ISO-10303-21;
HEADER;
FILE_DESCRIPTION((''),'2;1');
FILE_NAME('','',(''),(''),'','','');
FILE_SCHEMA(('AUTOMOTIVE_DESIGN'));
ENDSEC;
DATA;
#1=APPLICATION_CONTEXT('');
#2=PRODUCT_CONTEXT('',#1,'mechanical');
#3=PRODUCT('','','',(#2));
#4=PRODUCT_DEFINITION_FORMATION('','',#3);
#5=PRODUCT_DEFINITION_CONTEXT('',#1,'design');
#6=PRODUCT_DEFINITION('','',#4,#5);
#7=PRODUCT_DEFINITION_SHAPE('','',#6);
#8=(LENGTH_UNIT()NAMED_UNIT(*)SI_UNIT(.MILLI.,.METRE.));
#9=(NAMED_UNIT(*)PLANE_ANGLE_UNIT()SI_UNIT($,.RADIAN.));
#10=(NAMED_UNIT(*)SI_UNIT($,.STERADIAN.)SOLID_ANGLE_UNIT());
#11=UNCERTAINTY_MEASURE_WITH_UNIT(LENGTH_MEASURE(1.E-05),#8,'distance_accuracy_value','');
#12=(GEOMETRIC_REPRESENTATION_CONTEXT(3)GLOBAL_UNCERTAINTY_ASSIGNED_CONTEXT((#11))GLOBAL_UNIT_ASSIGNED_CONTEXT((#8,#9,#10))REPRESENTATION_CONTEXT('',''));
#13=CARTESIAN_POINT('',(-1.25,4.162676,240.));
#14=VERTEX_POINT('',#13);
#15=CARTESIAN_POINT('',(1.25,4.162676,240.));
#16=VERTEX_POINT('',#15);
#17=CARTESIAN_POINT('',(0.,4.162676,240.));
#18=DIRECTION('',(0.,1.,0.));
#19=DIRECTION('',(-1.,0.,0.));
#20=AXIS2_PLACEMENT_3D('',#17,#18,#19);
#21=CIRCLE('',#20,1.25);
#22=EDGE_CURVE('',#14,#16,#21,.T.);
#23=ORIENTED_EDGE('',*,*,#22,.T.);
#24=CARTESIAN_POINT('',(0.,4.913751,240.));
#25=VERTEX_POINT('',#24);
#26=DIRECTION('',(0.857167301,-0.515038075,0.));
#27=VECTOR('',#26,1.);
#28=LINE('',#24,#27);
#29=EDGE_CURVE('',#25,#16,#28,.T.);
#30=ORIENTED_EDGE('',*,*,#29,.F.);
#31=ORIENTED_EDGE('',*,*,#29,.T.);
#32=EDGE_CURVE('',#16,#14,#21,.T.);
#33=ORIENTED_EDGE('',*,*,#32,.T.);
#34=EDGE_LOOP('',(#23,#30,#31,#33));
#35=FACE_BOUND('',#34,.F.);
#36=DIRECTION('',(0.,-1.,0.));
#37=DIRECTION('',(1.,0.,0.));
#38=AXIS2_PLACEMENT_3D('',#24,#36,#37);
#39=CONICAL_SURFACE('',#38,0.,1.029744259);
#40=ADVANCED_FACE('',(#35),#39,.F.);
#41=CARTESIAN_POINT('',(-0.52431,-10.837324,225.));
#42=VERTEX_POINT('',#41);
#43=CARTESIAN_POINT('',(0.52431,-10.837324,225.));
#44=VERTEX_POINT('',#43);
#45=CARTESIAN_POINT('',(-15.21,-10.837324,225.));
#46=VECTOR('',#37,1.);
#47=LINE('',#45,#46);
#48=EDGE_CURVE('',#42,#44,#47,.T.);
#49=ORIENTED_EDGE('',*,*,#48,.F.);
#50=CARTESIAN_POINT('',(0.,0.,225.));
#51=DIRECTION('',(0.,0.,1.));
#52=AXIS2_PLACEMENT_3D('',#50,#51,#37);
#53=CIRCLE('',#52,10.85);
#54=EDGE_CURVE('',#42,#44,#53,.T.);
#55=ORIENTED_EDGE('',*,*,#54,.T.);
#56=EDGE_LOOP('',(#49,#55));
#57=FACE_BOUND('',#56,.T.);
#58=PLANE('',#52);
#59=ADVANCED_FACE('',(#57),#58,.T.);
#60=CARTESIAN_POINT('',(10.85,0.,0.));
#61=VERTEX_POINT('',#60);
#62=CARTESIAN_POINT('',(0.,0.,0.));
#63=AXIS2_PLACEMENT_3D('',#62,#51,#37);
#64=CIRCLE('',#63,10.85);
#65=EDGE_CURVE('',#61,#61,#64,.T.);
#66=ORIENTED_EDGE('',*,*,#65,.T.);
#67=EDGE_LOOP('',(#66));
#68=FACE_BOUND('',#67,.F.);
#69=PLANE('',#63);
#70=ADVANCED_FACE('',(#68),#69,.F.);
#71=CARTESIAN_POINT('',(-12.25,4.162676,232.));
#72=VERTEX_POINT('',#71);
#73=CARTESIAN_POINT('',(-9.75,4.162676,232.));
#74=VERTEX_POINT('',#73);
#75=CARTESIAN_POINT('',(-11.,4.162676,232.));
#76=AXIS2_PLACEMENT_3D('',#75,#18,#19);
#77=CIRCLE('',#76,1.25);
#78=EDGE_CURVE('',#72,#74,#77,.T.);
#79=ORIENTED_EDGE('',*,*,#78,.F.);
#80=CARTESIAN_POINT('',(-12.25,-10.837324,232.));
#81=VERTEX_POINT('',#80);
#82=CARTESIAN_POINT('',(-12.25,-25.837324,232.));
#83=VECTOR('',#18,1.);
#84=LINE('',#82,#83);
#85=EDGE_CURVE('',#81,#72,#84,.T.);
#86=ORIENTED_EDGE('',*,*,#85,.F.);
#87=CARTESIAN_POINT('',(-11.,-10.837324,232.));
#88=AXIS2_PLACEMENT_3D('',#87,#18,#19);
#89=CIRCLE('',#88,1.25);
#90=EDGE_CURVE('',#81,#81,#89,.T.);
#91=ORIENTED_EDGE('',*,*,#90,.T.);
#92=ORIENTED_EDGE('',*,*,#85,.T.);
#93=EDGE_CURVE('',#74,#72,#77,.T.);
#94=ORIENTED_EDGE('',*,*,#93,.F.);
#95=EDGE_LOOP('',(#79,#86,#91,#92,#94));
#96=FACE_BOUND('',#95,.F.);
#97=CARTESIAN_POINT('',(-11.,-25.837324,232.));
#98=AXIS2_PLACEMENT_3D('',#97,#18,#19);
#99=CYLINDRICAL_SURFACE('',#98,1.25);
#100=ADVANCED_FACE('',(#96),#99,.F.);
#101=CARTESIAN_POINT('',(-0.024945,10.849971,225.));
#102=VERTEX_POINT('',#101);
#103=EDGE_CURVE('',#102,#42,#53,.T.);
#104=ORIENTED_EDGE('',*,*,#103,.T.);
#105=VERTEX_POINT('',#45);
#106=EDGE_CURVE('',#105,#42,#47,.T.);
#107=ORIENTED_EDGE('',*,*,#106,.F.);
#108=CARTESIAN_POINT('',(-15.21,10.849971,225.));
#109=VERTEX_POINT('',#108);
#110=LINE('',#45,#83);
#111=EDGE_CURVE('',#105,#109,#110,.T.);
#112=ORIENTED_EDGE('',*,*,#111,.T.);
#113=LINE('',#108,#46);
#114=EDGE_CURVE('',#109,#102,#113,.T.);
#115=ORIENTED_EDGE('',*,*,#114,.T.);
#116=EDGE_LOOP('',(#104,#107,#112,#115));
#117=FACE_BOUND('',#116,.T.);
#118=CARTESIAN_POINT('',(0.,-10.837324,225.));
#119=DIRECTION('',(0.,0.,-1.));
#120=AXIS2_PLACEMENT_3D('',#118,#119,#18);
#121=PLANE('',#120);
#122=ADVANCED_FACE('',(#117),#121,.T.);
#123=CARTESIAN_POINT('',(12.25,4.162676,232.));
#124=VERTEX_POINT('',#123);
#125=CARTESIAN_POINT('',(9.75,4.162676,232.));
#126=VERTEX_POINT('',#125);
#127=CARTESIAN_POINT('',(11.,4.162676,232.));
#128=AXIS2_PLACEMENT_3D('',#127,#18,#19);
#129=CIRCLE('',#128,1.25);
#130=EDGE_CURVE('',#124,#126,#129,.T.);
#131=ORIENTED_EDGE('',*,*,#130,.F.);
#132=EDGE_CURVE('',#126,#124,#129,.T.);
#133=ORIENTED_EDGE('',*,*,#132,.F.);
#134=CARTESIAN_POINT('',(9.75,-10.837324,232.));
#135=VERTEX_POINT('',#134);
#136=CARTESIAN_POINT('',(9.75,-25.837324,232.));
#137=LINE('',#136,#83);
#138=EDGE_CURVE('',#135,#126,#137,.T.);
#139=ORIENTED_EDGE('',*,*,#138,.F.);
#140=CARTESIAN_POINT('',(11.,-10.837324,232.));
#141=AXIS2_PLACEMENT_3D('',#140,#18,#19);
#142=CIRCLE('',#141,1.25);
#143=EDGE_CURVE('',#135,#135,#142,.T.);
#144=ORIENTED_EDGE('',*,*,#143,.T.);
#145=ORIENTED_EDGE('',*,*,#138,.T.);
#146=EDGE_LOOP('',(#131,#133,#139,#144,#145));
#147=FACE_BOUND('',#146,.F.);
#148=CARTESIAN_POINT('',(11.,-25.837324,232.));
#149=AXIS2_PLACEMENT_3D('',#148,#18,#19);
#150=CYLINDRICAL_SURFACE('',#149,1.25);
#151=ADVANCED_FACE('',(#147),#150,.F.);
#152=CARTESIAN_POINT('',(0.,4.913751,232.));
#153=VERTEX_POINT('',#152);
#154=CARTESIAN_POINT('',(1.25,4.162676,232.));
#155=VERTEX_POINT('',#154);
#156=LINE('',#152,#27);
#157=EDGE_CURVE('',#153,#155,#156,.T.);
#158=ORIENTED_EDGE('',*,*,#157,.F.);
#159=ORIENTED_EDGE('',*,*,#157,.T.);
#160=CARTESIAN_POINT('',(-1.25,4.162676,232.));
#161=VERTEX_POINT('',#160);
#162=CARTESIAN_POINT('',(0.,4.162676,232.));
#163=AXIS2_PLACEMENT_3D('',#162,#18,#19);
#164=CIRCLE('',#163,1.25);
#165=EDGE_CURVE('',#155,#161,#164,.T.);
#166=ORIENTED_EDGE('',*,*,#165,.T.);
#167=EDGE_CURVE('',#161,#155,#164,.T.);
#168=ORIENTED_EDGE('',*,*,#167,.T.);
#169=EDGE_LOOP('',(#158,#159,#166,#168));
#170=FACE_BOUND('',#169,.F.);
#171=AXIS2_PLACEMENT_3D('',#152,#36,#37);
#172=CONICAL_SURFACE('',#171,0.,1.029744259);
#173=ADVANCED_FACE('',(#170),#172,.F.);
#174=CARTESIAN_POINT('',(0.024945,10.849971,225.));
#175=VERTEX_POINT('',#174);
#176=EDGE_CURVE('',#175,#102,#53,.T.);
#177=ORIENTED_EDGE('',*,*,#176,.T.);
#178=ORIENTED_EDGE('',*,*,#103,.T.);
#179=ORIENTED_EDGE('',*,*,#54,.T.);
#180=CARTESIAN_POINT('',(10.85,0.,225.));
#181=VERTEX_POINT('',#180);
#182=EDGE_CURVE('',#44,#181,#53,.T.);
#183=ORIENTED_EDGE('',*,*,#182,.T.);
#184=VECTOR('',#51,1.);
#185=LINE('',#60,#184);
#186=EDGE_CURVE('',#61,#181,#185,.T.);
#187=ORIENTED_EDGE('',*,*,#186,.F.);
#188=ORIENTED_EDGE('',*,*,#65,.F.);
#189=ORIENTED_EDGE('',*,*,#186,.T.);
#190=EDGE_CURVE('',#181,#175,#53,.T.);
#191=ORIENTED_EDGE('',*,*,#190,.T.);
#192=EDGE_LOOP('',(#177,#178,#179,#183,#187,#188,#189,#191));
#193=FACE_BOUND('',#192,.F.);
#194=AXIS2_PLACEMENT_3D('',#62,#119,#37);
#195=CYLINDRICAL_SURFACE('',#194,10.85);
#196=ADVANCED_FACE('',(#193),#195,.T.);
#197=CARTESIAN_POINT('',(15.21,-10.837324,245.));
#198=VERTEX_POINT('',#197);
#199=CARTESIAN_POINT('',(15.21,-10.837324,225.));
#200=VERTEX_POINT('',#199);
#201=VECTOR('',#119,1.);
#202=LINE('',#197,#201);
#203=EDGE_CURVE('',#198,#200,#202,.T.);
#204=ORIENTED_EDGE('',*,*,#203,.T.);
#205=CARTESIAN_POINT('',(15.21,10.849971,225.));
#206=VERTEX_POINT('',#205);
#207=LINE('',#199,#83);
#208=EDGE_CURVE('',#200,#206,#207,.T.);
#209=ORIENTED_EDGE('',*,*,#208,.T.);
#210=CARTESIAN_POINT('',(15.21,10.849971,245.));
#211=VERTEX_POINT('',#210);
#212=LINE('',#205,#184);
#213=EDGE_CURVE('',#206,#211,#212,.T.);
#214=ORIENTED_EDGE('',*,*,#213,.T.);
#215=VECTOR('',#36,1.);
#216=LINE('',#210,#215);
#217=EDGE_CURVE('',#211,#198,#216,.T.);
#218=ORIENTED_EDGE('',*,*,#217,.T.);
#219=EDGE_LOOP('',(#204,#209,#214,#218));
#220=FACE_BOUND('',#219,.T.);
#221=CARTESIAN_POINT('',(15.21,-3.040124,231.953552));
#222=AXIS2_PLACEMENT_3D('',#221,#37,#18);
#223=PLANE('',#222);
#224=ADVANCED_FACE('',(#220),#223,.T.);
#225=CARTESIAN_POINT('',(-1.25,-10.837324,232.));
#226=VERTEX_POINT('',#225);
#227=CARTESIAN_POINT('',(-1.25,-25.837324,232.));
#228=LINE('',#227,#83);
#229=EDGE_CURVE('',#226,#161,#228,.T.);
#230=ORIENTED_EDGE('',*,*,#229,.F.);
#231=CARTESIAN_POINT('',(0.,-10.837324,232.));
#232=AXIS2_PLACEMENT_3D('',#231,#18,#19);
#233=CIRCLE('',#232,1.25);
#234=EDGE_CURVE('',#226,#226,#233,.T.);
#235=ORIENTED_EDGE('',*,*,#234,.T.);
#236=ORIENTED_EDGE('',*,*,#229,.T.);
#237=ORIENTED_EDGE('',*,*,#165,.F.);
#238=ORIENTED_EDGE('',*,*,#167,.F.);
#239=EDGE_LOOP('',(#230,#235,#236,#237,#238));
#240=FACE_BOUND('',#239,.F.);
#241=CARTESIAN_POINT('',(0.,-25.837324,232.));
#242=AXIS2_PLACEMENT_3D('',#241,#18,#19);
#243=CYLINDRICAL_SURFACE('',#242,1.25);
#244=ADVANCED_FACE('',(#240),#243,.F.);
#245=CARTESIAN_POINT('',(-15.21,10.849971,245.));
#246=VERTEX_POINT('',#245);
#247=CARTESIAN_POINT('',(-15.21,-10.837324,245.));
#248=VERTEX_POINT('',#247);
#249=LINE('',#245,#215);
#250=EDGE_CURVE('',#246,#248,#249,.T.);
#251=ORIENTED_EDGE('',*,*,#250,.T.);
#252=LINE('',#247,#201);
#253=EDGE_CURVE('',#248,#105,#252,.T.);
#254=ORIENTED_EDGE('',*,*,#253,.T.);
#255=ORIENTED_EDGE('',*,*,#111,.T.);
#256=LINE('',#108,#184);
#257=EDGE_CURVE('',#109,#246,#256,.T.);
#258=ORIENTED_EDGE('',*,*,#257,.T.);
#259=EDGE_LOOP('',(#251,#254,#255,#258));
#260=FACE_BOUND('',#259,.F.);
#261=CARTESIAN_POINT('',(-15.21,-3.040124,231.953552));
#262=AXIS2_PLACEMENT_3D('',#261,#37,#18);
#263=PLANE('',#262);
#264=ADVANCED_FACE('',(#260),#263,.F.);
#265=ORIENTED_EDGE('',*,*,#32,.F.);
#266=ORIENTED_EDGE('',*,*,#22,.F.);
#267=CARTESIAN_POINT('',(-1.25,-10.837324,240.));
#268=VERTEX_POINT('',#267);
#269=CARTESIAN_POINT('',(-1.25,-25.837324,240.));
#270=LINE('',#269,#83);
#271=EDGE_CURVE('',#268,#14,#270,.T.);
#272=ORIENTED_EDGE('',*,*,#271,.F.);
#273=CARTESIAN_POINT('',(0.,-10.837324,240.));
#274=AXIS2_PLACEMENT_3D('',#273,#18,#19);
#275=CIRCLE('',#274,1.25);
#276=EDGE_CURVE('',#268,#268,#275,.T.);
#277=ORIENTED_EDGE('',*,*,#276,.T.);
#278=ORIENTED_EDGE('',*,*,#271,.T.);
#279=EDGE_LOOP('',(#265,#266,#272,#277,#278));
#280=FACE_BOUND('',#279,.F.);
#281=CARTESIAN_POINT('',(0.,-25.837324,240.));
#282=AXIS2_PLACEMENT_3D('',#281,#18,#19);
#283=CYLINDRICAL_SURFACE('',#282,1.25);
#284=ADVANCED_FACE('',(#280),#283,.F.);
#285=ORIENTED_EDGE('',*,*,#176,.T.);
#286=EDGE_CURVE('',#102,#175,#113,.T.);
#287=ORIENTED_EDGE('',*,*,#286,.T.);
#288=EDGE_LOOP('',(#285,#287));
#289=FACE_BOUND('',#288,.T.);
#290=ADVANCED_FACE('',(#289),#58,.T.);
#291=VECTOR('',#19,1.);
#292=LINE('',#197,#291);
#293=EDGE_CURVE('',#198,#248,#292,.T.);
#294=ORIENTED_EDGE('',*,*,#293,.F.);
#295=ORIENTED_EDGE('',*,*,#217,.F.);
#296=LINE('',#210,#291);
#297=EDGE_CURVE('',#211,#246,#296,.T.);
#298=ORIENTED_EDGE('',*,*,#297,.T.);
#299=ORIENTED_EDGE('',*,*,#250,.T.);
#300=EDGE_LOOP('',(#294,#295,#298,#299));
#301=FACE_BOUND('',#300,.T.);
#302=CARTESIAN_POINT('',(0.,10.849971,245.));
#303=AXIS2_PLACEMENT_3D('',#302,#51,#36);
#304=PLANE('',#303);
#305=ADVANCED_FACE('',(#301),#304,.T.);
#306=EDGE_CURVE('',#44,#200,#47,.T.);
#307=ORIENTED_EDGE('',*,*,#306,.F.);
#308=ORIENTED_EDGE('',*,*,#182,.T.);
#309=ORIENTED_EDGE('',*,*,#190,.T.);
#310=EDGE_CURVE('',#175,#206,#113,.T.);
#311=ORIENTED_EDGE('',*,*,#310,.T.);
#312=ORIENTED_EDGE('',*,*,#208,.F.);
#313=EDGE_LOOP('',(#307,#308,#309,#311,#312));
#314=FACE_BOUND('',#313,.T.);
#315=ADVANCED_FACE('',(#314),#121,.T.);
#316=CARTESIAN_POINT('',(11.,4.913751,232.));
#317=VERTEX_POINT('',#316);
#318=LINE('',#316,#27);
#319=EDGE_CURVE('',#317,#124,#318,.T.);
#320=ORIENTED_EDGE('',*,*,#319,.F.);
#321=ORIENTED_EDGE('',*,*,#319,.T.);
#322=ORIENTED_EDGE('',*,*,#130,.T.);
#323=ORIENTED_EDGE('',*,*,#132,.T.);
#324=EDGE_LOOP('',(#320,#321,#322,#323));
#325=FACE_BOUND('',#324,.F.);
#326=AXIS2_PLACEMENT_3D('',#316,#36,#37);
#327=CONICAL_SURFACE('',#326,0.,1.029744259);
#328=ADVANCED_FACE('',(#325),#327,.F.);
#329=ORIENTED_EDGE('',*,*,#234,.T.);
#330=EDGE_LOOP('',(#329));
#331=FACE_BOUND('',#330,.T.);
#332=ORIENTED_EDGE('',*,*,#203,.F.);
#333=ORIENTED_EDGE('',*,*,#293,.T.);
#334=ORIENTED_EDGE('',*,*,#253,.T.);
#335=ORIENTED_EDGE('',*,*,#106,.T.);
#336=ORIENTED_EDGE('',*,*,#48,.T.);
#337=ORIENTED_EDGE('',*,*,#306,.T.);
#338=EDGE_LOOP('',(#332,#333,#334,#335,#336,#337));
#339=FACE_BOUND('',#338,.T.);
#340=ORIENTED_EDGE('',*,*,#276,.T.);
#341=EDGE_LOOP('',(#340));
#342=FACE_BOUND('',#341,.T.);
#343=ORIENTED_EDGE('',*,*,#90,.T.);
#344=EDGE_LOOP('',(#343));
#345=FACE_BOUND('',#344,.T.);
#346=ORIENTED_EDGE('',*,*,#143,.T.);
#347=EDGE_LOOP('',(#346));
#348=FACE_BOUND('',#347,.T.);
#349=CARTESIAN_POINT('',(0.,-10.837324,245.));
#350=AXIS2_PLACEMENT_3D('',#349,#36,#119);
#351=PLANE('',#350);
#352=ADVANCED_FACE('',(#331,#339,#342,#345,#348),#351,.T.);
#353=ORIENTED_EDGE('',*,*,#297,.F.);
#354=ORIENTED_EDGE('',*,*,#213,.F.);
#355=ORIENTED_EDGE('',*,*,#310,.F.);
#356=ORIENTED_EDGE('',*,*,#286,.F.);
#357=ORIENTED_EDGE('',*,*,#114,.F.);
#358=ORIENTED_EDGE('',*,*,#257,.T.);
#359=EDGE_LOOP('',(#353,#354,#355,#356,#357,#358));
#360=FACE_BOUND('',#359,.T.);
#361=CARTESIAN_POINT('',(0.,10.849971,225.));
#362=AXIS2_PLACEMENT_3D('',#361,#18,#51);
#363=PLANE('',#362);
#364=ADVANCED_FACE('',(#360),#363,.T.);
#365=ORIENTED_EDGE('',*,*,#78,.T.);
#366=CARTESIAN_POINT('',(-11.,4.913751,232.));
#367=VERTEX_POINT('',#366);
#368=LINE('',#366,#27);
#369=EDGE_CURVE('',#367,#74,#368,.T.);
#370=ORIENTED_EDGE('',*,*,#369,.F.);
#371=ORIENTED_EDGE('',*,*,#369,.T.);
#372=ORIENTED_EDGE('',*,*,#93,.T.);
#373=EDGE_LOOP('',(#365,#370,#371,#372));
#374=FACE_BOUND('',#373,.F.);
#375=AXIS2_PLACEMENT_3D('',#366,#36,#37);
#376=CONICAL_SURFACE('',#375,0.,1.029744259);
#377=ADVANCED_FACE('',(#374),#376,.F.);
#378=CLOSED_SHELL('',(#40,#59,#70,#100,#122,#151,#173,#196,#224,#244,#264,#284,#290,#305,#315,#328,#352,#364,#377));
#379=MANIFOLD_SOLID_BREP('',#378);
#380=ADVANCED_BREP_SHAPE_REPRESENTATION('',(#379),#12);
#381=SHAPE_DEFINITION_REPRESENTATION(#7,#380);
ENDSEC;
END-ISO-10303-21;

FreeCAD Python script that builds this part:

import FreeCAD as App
import Part
import Sketcher

V = App.Vector

doc = App.newDocument("Part")
body = doc.addObject("PartDesign::Body", "Body")

# Sketch on XY plane
sketch1 = doc.addObject("Sketcher::SketchObject", "Sketch")
body.addObject(sketch1)
sketch1.AttachmentSupport = (doc.XY_Plane, [""])
sketch1.MapMode = "FlatFace"
sketch1.addGeometry(Part.Circle(V(0, 0, 0), V(0, 0, 1), 11), False)
sketch1.addConstraint(Sketcher.Constraint("Coincident", 0, 3, -1, 1))
sketch1.addConstraint(Sketcher.Constraint("Diameter", 0, 21.7))
pad1 = doc.addObject("PartDesign::Pad", "Pad")
body.addObject(pad1)
pad1.Profile = sketch1
pad1.Length = 225

# Sketch on YZ plane
sketch2 = doc.addObject("Sketcher::SketchObject", "Sketch001")
body.addObject(sketch2)
sketch2.AttachmentSupport = (doc.YZ_Plane, [""])
sketch2.MapMode = "FlatFace"
sketch2.addGeometry(Part.LineSegment(V(-11, 245, 0), V(-11, 225, 0)), False)
sketch2.addGeometry(Part.LineSegment(V(-11, 225, 0), V(11, 225, 0)), False)
sketch2.addGeometry(Part.LineSegment(V(11, 225, 0), V(11, 245, 0)), False)
sketch2.addGeometry(Part.LineSegment(V(11, 245, 0), V(-11, 245, 0)), False)
sketch2.addConstraint(Sketcher.Constraint("Coincident", 0, 2, 1, 1))
sketch2.addConstraint(Sketcher.Constraint("Coincident", 1, 2, 2, 1))
sketch2.addConstraint(Sketcher.Constraint("Coincident", 2, 2, 3, 1))
sketch2.addConstraint(Sketcher.Constraint("Coincident", 3, 2, 0, 1))
sketch2.addConstraint(Sketcher.Constraint("Vertical", 0))
sketch2.addConstraint(Sketcher.Constraint("Horizontal", 1))
sketch2.addConstraint(Sketcher.Constraint("Vertical", 2))
sketch2.addConstraint(Sketcher.Constraint("Horizontal", 3))
sketch2.addConstraint(Sketcher.Constraint("DistanceY", 0, 2, 0, 1, 20.0))
sketch2.addConstraint(Sketcher.Constraint("DistanceY", -1, 1, 0, 2, 225.0))
sketch2.addConstraint(Sketcher.Constraint("DistanceX", 1, 1, 1, 2, 21.687296))
sketch2.addConstraint(Sketcher.Constraint("DistanceX", -1, 1, 1, 2, 10.849971))
pad2 = doc.addObject("PartDesign::Pad", "Pad001")
body.addObject(pad2)
pad2.Profile = sketch2
pad2.Length = 30.42
pad2.Midplane = True

# Sketch on XZ plane
sketch3 = doc.addObject("Sketcher::SketchObject", "Sketch002")
body.addObject(sketch3)
sketch3.AttachmentSupport = (doc.XZ_Plane, [""])
sketch3.MapMode = "FlatFace"
sketch3.AttachmentOffset = App.Placement(V(0, 0, 10.837324), App.Rotation())
sketch3.addGeometry(Part.Circle(V(11, 232, 0), V(0, 0, 1), 1.2), False)
sketch3.addGeometry(Part.Circle(V(0, 232, 0), V(0, 0, 1), 1.2), False)
sketch3.addGeometry(Part.Circle(V(-11, 232, 0), V(0, 0, 1), 1.2), False)
sketch3.addGeometry(Part.Circle(V(0, 240, 0), V(0, 0, 1), 1.2), False)
sketch3.addConstraint(Sketcher.Constraint("Equal", 0, 1))
sketch3.addConstraint(Sketcher.Constraint("Equal", 1, 2))
sketch3.addConstraint(Sketcher.Constraint("Equal", 2, 3))
sketch3.addConstraint(Sketcher.Constraint("Symmetric", 0, 3, 2, 3, -2))
sketch3.addConstraint(Sketcher.Constraint("PointOnObject", 1, 3, -2))
sketch3.addConstraint(Sketcher.Constraint("PointOnObject", 3, 3, -2))
sketch3.addConstraint(Sketcher.Constraint("Horizontal", 0, 3, 1, 3))
sketch3.addConstraint(Sketcher.Constraint("Diameter", 0, 2.5))
sketch3.addConstraint(Sketcher.Constraint("DistanceX", -1, 1, 0, 3, 11.0))
sketch3.addConstraint(Sketcher.Constraint("DistanceY", -1, 1, 0, 3, 232.0))
sketch3.addConstraint(Sketcher.Constraint("DistanceY", -1, 1, 3, 3, 240.0))
doc.recompute()
hole = doc.addObject("PartDesign::Hole", "Hole")
body.addObject(hole)
hole.Profile = sketch3
hole.ThreadType = "None"
hole.Diameter = 2.5
hole.DepthType = "Dimension"
hole.Depth = 15
hole.DrillPoint = "Angled"
hole.DrillPointAngle = 118

doc.recompute()
